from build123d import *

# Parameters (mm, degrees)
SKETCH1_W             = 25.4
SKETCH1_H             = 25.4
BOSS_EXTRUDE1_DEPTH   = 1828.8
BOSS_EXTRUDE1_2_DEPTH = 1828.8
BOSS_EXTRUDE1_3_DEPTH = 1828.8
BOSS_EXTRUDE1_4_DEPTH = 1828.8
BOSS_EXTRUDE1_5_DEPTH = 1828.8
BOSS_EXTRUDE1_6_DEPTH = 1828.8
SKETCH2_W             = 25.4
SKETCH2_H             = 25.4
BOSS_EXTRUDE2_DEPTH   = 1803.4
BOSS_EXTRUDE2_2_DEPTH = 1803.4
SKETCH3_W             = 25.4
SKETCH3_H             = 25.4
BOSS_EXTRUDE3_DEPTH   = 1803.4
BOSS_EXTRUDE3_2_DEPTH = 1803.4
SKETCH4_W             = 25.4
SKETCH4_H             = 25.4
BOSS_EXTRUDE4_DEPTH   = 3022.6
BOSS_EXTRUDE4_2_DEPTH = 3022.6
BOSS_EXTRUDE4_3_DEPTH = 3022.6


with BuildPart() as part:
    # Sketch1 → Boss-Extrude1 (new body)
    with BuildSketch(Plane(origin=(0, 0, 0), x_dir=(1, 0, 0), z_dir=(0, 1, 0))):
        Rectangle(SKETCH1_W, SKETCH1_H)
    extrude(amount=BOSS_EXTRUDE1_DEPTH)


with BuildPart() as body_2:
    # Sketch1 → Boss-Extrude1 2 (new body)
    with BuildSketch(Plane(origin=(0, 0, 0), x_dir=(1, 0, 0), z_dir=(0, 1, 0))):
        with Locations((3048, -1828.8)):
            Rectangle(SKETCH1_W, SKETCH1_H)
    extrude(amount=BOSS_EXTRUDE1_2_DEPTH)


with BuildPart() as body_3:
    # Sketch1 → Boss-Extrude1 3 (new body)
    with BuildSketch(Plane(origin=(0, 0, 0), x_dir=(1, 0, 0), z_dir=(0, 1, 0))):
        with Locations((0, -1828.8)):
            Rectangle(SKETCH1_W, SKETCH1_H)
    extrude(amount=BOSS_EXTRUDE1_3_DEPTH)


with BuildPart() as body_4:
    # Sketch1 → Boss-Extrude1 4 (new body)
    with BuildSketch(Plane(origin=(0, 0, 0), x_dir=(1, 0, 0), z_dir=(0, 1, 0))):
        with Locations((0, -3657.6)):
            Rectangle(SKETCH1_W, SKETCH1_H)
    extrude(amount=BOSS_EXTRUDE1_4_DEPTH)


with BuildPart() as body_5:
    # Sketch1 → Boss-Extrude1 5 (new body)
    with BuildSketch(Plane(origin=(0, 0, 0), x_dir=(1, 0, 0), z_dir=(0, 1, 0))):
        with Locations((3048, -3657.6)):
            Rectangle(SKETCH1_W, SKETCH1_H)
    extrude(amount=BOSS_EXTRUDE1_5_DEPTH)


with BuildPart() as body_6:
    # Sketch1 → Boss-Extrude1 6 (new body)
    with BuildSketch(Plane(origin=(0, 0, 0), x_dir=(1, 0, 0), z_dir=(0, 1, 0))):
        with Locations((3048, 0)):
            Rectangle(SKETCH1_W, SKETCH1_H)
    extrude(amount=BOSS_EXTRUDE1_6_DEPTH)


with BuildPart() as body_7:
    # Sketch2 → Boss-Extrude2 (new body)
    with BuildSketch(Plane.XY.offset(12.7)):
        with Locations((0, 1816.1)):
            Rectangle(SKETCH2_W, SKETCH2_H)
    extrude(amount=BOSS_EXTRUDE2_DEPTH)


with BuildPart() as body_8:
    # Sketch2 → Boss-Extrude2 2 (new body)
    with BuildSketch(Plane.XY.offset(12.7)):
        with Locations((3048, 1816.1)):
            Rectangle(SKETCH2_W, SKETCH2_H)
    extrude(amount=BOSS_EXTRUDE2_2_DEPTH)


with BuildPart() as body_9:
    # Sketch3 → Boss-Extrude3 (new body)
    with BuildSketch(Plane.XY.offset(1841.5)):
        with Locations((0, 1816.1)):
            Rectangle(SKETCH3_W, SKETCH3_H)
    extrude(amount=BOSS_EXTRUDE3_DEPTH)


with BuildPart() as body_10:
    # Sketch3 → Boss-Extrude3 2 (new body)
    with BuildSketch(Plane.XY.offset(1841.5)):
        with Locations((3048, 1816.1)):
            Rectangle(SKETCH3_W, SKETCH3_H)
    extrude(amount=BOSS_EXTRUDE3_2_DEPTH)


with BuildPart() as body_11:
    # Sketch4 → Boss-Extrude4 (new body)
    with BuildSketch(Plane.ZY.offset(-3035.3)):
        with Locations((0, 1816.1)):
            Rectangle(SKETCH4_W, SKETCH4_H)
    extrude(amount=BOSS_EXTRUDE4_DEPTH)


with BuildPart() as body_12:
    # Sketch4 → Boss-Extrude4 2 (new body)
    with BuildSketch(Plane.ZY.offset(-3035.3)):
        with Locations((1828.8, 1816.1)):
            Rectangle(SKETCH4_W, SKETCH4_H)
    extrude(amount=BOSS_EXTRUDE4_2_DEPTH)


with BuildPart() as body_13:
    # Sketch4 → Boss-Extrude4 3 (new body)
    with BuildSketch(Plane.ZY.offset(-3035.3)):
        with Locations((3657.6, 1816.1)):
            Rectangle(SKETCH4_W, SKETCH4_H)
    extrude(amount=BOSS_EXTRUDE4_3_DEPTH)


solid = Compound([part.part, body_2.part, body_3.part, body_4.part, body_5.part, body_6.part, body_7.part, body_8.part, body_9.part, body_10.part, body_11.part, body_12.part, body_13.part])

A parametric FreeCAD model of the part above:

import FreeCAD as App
import Part
import Sketcher
from FreeCAD import Vector
Q = App.Units.Quantity


def add_polygon(sketch, points):
    """Adds a closed chain of lines whose ends are joined by coincident constraints."""
    first, n = sketch.GeometryCount, len(points)
    for a, b in zip(points, points[1:] + points[:1]):
        sketch.addGeometry(Part.LineSegment(App.Vector(*a, 0), App.Vector(*b, 0)), False)
    for i in range(n):
        sketch.addConstraint(Sketcher.Constraint("Coincident", first + i, 2, first + (i + 1) % n, 1))

doc = App.newDocument("Part")
body = doc.addObject("PartDesign::Body", "Body")

# Sketch on XZ plane
sketch1 = body.newObject("Sketcher::SketchObject", "Sketch")
sketch1.AttachmentSupport = (doc.getObject("XZ_Plane"), [""])
sketch1.MapMode = "FlatFace"
add_polygon(sketch1, [(-13, -13), (-13, 13), (13, 13), (13, -13)])  # lines 0-3
sketch1.addConstraint(Sketcher.Constraint("Vertical", 0))
sketch1.addConstraint(Sketcher.Constraint("Horizontal", 1))
sketch1.addConstraint(Sketcher.Constraint("Vertical", 2))
sketch1.addConstraint(Sketcher.Constraint("Horizontal", 3))
sketch1.addConstraint(Sketcher.Constraint("Symmetric", 0, 2, 2, 2, -1, 1))
sketch1.addConstraint(Sketcher.Constraint("Equal", 3, 0))
sketch1.addConstraint(Sketcher.Constraint("DistanceX", 1, 1, 1, 2, Q("1 in")))
pad1 = body.newObject("PartDesign::Pad", "Pad")
pad1.Profile = sketch1
pad1.Length = Q("72 in")
pad1.Reversed = True
body2 = doc.addObject("PartDesign::Body", "Body001")

# Sketch on XZ plane
sketch2 = body2.newObject("Sketcher::SketchObject", "Sketch001")
sketch2.AttachmentSupport = (doc.getObject("XZ_Plane001"), [""])
sketch2.MapMode = "FlatFace"
add_polygon(sketch2, [(3035, 1816), (3035, 1842), (3061, 1842), (3061, 1816)])  # lines 0-3
sketch2.addConstraint(Sketcher.Constraint("Vertical", 0))
sketch2.addConstraint(Sketcher.Constraint("Horizontal", 1))
sketch2.addConstraint(Sketcher.Constraint("Vertical", 2))
sketch2.addConstraint(Sketcher.Constraint("Horizontal", 3))
sketch2.addConstraint(Sketcher.Constraint("Equal", 3, 0))
sketch2.addConstraint(Sketcher.Constraint("DistanceX", 1, 1, 1, 2, Q("1 in")))
sketch2.addConstraint(Sketcher.Constraint("DistanceX", -1, 1, 0, 2, Q("119.5 in")))
sketch2.addConstraint(Sketcher.Constraint("DistanceY", -1, 1, 0, 2, Q("72.5 in")))
pad2 = body2.newObject("PartDesign::Pad", "Pad001")
pad2.Profile = sketch2
pad2.Length = Q("72 in")
pad2.Reversed = True
body3 = doc.addObject("PartDesign::Body", "Body002")

# Sketch on XZ plane
sketch3 = body3.newObject("Sketcher::SketchObject", "Sketch002")
sketch3.AttachmentSupport = (doc.getObject("XZ_Plane002"), [""])
sketch3.MapMode = "FlatFace"
add_polygon(sketch3, [(-13, 1816), (-13, 1842), (13, 1842), (13, 1816)])  # lines 0-3
sketch3.addConstraint(Sketcher.Constraint("Vertical", 0))
sketch3.addConstraint(Sketcher.Constraint("Horizontal", 1))
sketch3.addConstraint(Sketcher.Constraint("Vertical", 2))
sketch3.addConstraint(Sketcher.Constraint("Horizontal", 3))
sketch3.addConstraint(Sketcher.Constraint("Equal", 3, 0))
sketch3.addConstraint(Sketcher.Constraint("DistanceX", 1, 1, 1, 2, Q("1 in")))
sketch3.addConstraint(Sketcher.Constraint("DistanceX", 0, 2, -1, 1, Q("0.5 in")))
sketch3.addConstraint(Sketcher.Constraint("DistanceY", -1, 1, 0, 2, Q("72.5 in")))
pad3 = body3.newObject("PartDesign::Pad", "Pad002")
pad3.Profile = sketch3
pad3.Length = Q("72 in")
pad3.Reversed = True
body4 = doc.addObject("PartDesign::Body", "Body003")

# Sketch on XZ plane
sketch4 = body4.newObject("Sketcher::SketchObject", "Sketch003")
sketch4.AttachmentSupport = (doc.getObject("XZ_Plane003"), [""])
sketch4.MapMode = "FlatFace"
add_polygon(sketch4, [(-13, 3645), (-13, 3670), (13, 3670), (13, 3645)])  # lines 0-3
sketch4.addConstraint(Sketcher.Constraint("Vertical", 0))
sketch4.addConstraint(Sketcher.Constraint("Horizontal", 1))
sketch4.addConstraint(Sketcher.Constraint("Vertical", 2))
sketch4.addConstraint(Sketcher.Constraint("Horizontal", 3))
sketch4.addConstraint(Sketcher.Constraint("Equal", 3, 0))
sketch4.addConstraint(Sketcher.Constraint("DistanceX", 1, 1, 1, 2, Q("1 in")))
sketch4.addConstraint(Sketcher.Constraint("DistanceX", 0, 2, -1, 1, Q("0.5 in")))
sketch4.addConstraint(Sketcher.Constraint("DistanceY", -1, 1, 0, 2, Q("144.5 in")))
pad4 = body4.newObject("PartDesign::Pad", "Pad003")
pad4.Profile = sketch4
pad4.Length = Q("72 in")
pad4.Reversed = True
body5 = doc.addObject("PartDesign::Body", "Body004")

# Sketch on XZ plane
sketch5 = body5.newObject("Sketcher::SketchObject", "Sketch004")
sketch5.AttachmentSupport = (doc.getObject("XZ_Plane004"), [""])
sketch5.MapMode = "FlatFace"
add_polygon(sketch5, [(3035, 3645), (3035, 3670), (3061, 3670), (3061, 3645)])  # lines 0-3
sketch5.addConstraint(Sketcher.Constraint("Vertical", 0))
sketch5.addConstraint(Sketcher.Constraint("Horizontal", 1))
sketch5.addConstraint(Sketcher.Constraint("Vertical", 2))
sketch5.addConstraint(Sketcher.Constraint("Horizontal", 3))
sketch5.addConstraint(Sketcher.Constraint("Equal", 3, 0))
sketch5.addConstraint(Sketcher.Constraint("DistanceX", 1, 1, 1, 2, Q("1 in")))
sketch5.addConstraint(Sketcher.Constraint("DistanceX", -1, 1, 0, 2, Q("119.5 in")))
sketch5.addConstraint(Sketcher.Constraint("DistanceY", -1, 1, 0, 2, Q("144.5 in")))
pad5 = body5.newObject("PartDesign::Pad", "Pad004")
pad5.Profile = sketch5
pad5.Length = Q("72 in")
pad5.Reversed = True
body6 = doc.addObject("PartDesign::Body", "Body005")

# Sketch on XZ plane
sketch6 = body6.newObject("Sketcher::SketchObject", "Sketch005")
sketch6.AttachmentSupport = (doc.getObject("XZ_Plane005"), [""])
sketch6.MapMode = "FlatFace"
add_polygon(sketch6, [(3035, -13), (3035, 13), (3061, 13), (3061, -13)])  # lines 0-3
sketch6.addConstraint(Sketcher.Constraint("Vertical", 0))
sketch6.addConstraint(Sketcher.Constraint("Horizontal", 1))
sketch6.addConstraint(Sketcher.Constraint("Vertical", 2))
sketch6.addConstraint(Sketcher.Constraint("Horizontal", 3))
sketch6.addConstraint(Sketcher.Constraint("Equal", 3, 0))
sketch6.addConstraint(Sketcher.Constraint("DistanceX", 1, 1, 1, 2, Q("1 in")))
sketch6.addConstraint(Sketcher.Constraint("DistanceX", -1, 1, 0, 2, Q("119.5 in")))
sketch6.addConstraint(Sketcher.Constraint("DistanceY", -1, 1, 0, 2, Q("0.5 in")))
pad6 = body6.newObject("PartDesign::Pad", "Pad005")
pad6.Profile = sketch6
pad6.Length = Q("72 in")
pad6.Reversed = True
body7 = doc.addObject("PartDesign::Body", "Body006")

# Sketch on XY plane
sketch7 = body7.newObject("Sketcher::SketchObject", "Sketch006")
sketch7.AttachmentSupport = (doc.getObject("XY_Plane006"), [""])
sketch7.MapMode = "FlatFace"
sketch7.AttachmentOffset = App.Placement(Vector(0, 0, 0.5 * 25.4), App.Rotation())
add_polygon(sketch7, [(-13, 1829), (-13, 1803), (13, 1803), (13, 1829)])  # lines 0-3
sketch7.addConstraint(Sketcher.Constraint("Vertical", 0))
sketch7.addConstraint(Sketcher.Constraint("Horizontal", 1))
sketch7.addConstraint(Sketcher.Constraint("Vertical", 2))
sketch7.addConstraint(Sketcher.Constraint("Horizontal", 3))
sketch7.addConstraint(Sketcher.Constraint("Equal", 3, 0))
sketch7.addConstraint(Sketcher.Constraint("DistanceX", 1, 1, 1, 2, Q("1 in")))
sketch7.addConstraint(Sketcher.Constraint("DistanceY", -1, 1, 0, 2, Q("71 in")))
sketch7.addConstraint(Sketcher.Constraint("DistanceX", 0, 2, -1, 1, Q("0.5 in")))
pad7 = body7.newObject("PartDesign::Pad", "Pad006")
pad7.Profile = sketch7
pad7.Length = Q("71 in")
body8 = doc.addObject("PartDesign::Body", "Body007")

# Sketch on XY plane
sketch8 = body8.newObject("Sketcher::SketchObject", "Sketch007")
sketch8.AttachmentSupport = (doc.getObject("XY_Plane007"), [""])
sketch8.MapMode = "FlatFace"
sketch8.AttachmentOffset = App.Placement(Vector(0, 0, 0.5 * 25.4), App.Rotation())
add_polygon(sketch8, [(3035, 1829), (3035, 1803), (3061, 1803), (3061, 1829)])  # lines 0-3
sketch8.addConstraint(Sketcher.Constraint("Vertical", 0))
sketch8.addConstraint(Sketcher.Constraint("Horizontal", 1))
sketch8.addConstraint(Sketcher.Constraint("Vertical", 2))
sketch8.addConstraint(Sketcher.Constraint("Horizontal", 3))
sketch8.addConstraint(Sketcher.Constraint("Equal", 3, 0))
sketch8.addConstraint(Sketcher.Constraint("DistanceX", 1, 1, 1, 2, Q("1 in")))
sketch8.addConstraint(Sketcher.Constraint("DistanceY", -1, 1, 0, 2, Q("71 in")))
sketch8.addConstraint(Sketcher.Constraint("DistanceX", -1, 1, 0, 2, Q("119.5 in")))
pad8 = body8.newObject("PartDesign::Pad", "Pad007")
pad8.Profile = sketch8
pad8.Length = Q("71 in")
body9 = doc.addObject("PartDesign::Body", "Body008")

# Sketch on XY plane
sketch9 = body9.newObject("Sketcher::SketchObject", "Sketch008")
sketch9.AttachmentSupport = (doc.getObject("XY_Plane008"), [""])
sketch9.MapMode = "FlatFace"
sketch9.AttachmentOffset = App.Placement(Vector(0, 0, 72.5 * 25.4), App.Rotation())
add_polygon(sketch9, [(-13, 1829), (-13, 1803), (13, 1803), (13, 1829)])  # lines 0-3
sketch9.addConstraint(Sketcher.Constraint("Vertical", 0))
sketch9.addConstraint(Sketcher.Constraint("Horizontal", 1))
sketch9.addConstraint(Sketcher.Constraint("Vertical", 2))
sketch9.addConstraint(Sketcher.Constraint("Horizontal", 3))
sketch9.addConstraint(Sketcher.Constraint("Equal", 3, 0))
sketch9.addConstraint(Sketcher.Constraint("DistanceX", 1, 1, 1, 2, Q("1 in")))
sketch9.addConstraint(Sketcher.Constraint("DistanceY", -1, 1, 0, 2, Q("71 in")))
sketch9.addConstraint(Sketcher.Constraint("DistanceX", 0, 2, -1, 1, Q("0.5 in")))
pad9 = body9.newObject("PartDesign::Pad", "Pad008")
pad9.Profile = sketch9
pad9.Length = Q("71 in")
body10 = doc.addObject("PartDesign::Body", "Body009")

# Sketch on XY plane
sketch10 = body10.newObject("Sketcher::SketchObject", "Sketch009")
sketch10.AttachmentSupport = (doc.getObject("XY_Plane009"), [""])
sketch10.MapMode = "FlatFace"
sketch10.AttachmentOffset = App.Placement(Vector(0, 0, 72.5 * 25.4), App.Rotation())
add_polygon(sketch10, [(3035, 1829), (3035, 1803), (3061, 1803), (3061, 1829)])  # lines 0-3
sketch10.addConstraint(Sketcher.Constraint("Vertical", 0))
sketch10.addConstraint(Sketcher.Constraint("Horizontal", 1))
sketch10.addConstraint(Sketcher.Constraint("Vertical", 2))
sketch10.addConstraint(Sketcher.Constraint("Horizontal", 3))
sketch10.addConstraint(Sketcher.Constraint("Equal", 3, 0))
sketch10.addConstraint(Sketcher.Constraint("DistanceX", 1, 1, 1, 2, Q("1 in")))
sketch10.addConstraint(Sketcher.Constraint("DistanceY", -1, 1, 0, 2, Q("71 in")))
sketch10.addConstraint(Sketcher.Constraint("DistanceX", -1, 1, 0, 2, Q("119.5 in")))
pad10 = body10.newObject("PartDesign::Pad", "Pad009")
pad10.Profile = sketch10
pad10.Length = Q("71 in")
body11 = doc.addObject("PartDesign::Body", "Body010")

# Sketch on YZ plane
sketch11 = body11.newObject("Sketcher::SketchObject", "Sketch010")
sketch11.AttachmentSupport = (doc.getObject("YZ_Plane010"), [""])
sketch11.MapMode = "FlatFace"
sketch11.AttachmentOffset = App.Placement(Vector(0, 0, 119.5 * 25.4), App.Rotation())
add_polygon(sketch11, [(1829, -13), (1803, -13), (1803, 13), (1829, 13)])  # lines 0-3
sketch11.addConstraint(Sketcher.Constraint("Horizontal", 0))
sketch11.addConstraint(Sketcher.Constraint("Vertical", 1))
sketch11.addConstraint(Sketcher.Constraint("Horizontal", 2))
sketch11.addConstraint(Sketcher.Constraint("Vertical", 3))
sketch11.addConstraint(Sketcher.Constraint("Equal", 2, 1))
sketch11.addConstraint(Sketcher.Constraint("DistanceX", 0, 2, 0, 1, Q("1 in")))
sketch11.addConstraint(Sketcher.Constraint("DistanceX", -1, 1, 0, 2, Q("71 in")))
sketch11.addConstraint(Sketcher.Constraint("DistanceY", 0, 2, -1, 1, Q("0.5 in")))
pad11 = body11.newObject("PartDesign::Pad", "Pad010")
pad11.Profile = sketch11
pad11.Length = Q("119 in")
pad11.Reversed = True
body12 = doc.addObject("PartDesign::Body", "Body011")

# Sketch on YZ plane
sketch12 = body12.newObject("Sketcher::SketchObject", "Sketch011")
sketch12.AttachmentSupport = (doc.getObject("YZ_Plane011"), [""])
sketch12.MapMode = "FlatFace"
sketch12.AttachmentOffset = App.Placement(Vector(0, 0, 119.5 * 25.4), App.Rotation())
add_polygon(sketch12, [(1829, 1816), (1803, 1816), (1803, 1842), (1829, 1842)])  # lines 0-3
sketch12.addConstraint(Sketcher.Constraint("Horizontal", 0))
sketch12.addConstraint(Sketcher.Constraint("Vertical", 1))
sketch12.addConstraint(Sketcher.Constraint("Horizontal", 2))
sketch12.addConstraint(Sketcher.Constraint("Vertical", 3))
sketch12.addConstraint(Sketcher.Constraint("Equal", 2, 1))
sketch12.addConstraint(Sketcher.Constraint("DistanceX", 0, 2, 0, 1, Q("1 in")))
sketch12.addConstraint(Sketcher.Constraint("DistanceX", -1, 1, 0, 2, Q("71 in")))
sketch12.addConstraint(Sketcher.Constraint("DistanceY", -1, 1, 0, 2, Q("71.5 in")))
pad12 = body12.newObject("PartDesign::Pad", "Pad011")
pad12.Profile = sketch12
pad12.Length = Q("119 in")
pad12.Reversed = True
body13 = doc.addObject("PartDesign::Body", "Body012")

# Sketch on YZ plane
sketch13 = body13.newObject("Sketcher::SketchObject", "Sketch012")
sketch13.AttachmentSupport = (doc.getObject("YZ_Plane012"), [""])
sketch13.MapMode = "FlatFace"
sketch13.AttachmentOffset = App.Placement(Vector(0, 0, 119.5 * 25.4), App.Rotation())
add_polygon(sketch13, [(1829, 3645), (1803, 3645), (1803, 3670), (1829, 3670)])  # lines 0-3
sketch13.addConstraint(Sketcher.Constraint("Horizontal", 0))
sketch13.addConstraint(Sketcher.Constraint("Vertical", 1))
sketch13.addConstraint(Sketcher.Constraint("Horizontal", 2))
sketch13.addConstraint(Sketcher.Constraint("Vertical", 3))
sketch13.addConstraint(Sketcher.Constraint("Equal", 2, 1))
sketch13.addConstraint(Sketcher.Constraint("DistanceX", 0, 2, 0, 1, Q("1 in")))
sketch13.addConstraint(Sketcher.Constraint("DistanceX", -1, 1, 0, 2, Q("71 in")))
sketch13.addConstraint(Sketcher.Constraint("DistanceY", -1, 1, 0, 2, Q("143.5 in")))
pad13 = body13.newObject("PartDesign::Pad", "Pad012")
pad13.Profile = sketch13
pad13.Length = Q("119 in")
pad13.Reversed = True

doc.recompute()
